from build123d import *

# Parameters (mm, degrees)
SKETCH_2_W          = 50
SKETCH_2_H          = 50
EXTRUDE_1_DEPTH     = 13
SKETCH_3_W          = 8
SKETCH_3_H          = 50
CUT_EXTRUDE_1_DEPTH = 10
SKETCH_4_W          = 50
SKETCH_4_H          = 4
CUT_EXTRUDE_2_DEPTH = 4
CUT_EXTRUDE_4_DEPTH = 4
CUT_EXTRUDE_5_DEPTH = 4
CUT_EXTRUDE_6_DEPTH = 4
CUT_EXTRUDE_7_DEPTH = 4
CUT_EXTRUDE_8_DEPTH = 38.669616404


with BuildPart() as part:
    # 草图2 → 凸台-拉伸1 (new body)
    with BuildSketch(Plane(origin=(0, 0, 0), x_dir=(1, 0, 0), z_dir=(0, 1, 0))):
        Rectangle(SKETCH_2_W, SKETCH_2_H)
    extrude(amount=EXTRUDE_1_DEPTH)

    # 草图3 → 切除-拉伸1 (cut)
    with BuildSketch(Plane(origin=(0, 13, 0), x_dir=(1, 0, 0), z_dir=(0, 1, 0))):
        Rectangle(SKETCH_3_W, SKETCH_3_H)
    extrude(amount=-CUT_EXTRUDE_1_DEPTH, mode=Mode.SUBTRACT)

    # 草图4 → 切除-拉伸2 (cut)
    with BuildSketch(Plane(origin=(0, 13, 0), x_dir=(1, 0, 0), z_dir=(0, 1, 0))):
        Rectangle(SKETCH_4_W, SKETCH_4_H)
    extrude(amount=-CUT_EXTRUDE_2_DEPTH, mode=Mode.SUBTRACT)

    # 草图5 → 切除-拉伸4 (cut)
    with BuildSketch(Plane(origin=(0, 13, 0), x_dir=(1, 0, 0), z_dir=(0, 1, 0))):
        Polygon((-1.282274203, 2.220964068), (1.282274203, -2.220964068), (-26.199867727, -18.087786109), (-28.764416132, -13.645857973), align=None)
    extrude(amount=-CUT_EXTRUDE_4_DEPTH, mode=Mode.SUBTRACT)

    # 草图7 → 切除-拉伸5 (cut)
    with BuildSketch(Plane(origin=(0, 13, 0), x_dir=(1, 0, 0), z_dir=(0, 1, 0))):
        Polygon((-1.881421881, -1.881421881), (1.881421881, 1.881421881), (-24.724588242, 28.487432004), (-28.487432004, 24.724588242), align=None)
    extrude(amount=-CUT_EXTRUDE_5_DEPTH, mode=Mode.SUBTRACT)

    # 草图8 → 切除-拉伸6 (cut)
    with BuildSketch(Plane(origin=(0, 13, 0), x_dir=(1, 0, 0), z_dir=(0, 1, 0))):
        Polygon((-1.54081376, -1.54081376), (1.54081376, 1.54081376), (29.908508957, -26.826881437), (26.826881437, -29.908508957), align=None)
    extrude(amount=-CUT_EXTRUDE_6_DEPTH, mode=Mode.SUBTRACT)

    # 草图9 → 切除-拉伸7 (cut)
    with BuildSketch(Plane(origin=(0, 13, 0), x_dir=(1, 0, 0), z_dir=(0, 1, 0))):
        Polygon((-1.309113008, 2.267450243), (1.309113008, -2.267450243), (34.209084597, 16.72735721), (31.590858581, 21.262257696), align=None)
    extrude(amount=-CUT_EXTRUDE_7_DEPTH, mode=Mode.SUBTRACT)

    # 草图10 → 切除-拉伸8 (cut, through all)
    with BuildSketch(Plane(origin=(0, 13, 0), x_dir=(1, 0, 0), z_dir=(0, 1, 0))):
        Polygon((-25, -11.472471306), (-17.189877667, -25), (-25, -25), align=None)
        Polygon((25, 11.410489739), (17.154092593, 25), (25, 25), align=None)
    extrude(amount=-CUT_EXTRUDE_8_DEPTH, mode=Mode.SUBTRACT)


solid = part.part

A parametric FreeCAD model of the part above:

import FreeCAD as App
import Part
import Sketcher
Q = App.Units.Quantity

doc = App.newDocument("Part")
params = doc.addObject("Spreadsheet::Sheet", "Params")
for row, (alias, value) in enumerate([
    ("sketch1_width", "50 mm"),
    ("pad1_length", "13 mm"),
    ("sketch2_width", "8 mm"),
    ("sketch2_height", "50 mm"),
    ("pocket1_length", "10 mm"),
    ("sketch3_width", "50 mm"),
    ("sketch3_height", "4 mm"),
    ("pocket2_length", "4 mm"),
    ("pocket3_length", "4 mm"),
    ("pocket4_length", "4 mm"),
    ("pocket5_length", "4 mm"),
    ("pocket6_length", "4 mm"),
], start=1):
    params.set(f"A{row}", alias)
    params.set(f"B{row}", "=" + value)
    params.setAlias(f"B{row}", alias)

body = doc.addObject("PartDesign::Body", "Body")

sketch1 = body.newObject("Sketcher::SketchObject", "Sketch")
sketch1.AttachmentSupport = (doc.getObject("XZ_Plane"), [""])
sketch1.MapMode = "FlatFace"
sketch1.addGeometry([
    Part.LineSegment(App.Vector(-25, -25, 0), App.Vector(-25, 25, 0)),
    Part.LineSegment(App.Vector(-25, 25, 0), App.Vector(25, 25, 0)),
    Part.LineSegment(App.Vector(25, 25, 0), App.Vector(25, -25, 0)),
    Part.LineSegment(App.Vector(25, -25, 0), App.Vector(-25, -25, 0)),
], False)
sketch1.addConstraint([
    Sketcher.Constraint("Coincident", 0, 2, 1, 1),
    Sketcher.Constraint("Coincident", 1, 2, 2, 1),
    Sketcher.Constraint("Coincident", 2, 2, 3, 1),
    Sketcher.Constraint("Coincident", 3, 2, 0, 1),
    Sketcher.Constraint("Vertical", 0),
    Sketcher.Constraint("Horizontal", 1),
    Sketcher.Constraint("Vertical", 2),
    Sketcher.Constraint("Horizontal", 3),
    Sketcher.Constraint("Symmetric", 0, 2, 2, 2, -1, 1),
    Sketcher.Constraint("Equal", 3, 0),
    Sketcher.Constraint("DistanceX", 1, 1, 1, 2, Q("50 mm")),
])
sketch1.setExpression("Constraints[10]", "Params.sketch1_width")
pad1 = body.newObject("PartDesign::Pad", "Pad")
pad1.Profile = sketch1
pad1.setExpression("Length", "Params.pad1_length")
pad1.Reversed = True

sketch2 = body.newObject("Sketcher::SketchObject", "Sketch001")
sketch2.AttachmentSupport = (doc.getObject("XZ_Plane"), [""])
sketch2.MapMode = "FlatFace"
sketch2.AttachmentOffset = App.Placement(App.Vector(0, 0, -13), App.Rotation())
sketch2.addGeometry([
    Part.LineSegment(App.Vector(-4, -25, 0), App.Vector(-4, 25, 0)),
    Part.LineSegment(App.Vector(-4, 25, 0), App.Vector(4, 25, 0)),
    Part.LineSegment(App.Vector(4, 25, 0), App.Vector(4, -25, 0)),
    Part.LineSegment(App.Vector(4, -25, 0), App.Vector(-4, -25, 0)),
], False)
sketch2.addConstraint([
    Sketcher.Constraint("Coincident", 0, 2, 1, 1),
    Sketcher.Constraint("Coincident", 1, 2, 2, 1),
    Sketcher.Constraint("Coincident", 2, 2, 3, 1),
    Sketcher.Constraint("Coincident", 3, 2, 0, 1),
    Sketcher.Constraint("Vertical", 0),
    Sketcher.Constraint("Horizontal", 1),
    Sketcher.Constraint("Vertical", 2),
    Sketcher.Constraint("Horizontal", 3),
    Sketcher.Constraint("Symmetric", 0, 2, 2, 2, -1, 1),
    Sketcher.Constraint("DistanceX", 1, 1, 1, 2, Q("8 mm")),
    Sketcher.Constraint("DistanceY", 0, 1, 0, 2, Q("50 mm")),
])
sketch2.setExpression("Constraints[9]", "Params.sketch2_width")
sketch2.setExpression("Constraints[10]", "Params.sketch2_height")
pocket1 = body.newObject("PartDesign::Pocket", "Pocket")
pocket1.Profile = sketch2
pocket1.setExpression("Length", "Params.pocket1_length")
pocket1.Reversed = True

sketch3 = body.newObject("Sketcher::SketchObject", "Sketch002")
sketch3.AttachmentSupport = (doc.getObject("XZ_Plane"), [""])
sketch3.MapMode = "FlatFace"
sketch3.AttachmentOffset = App.Placement(App.Vector(0, 0, -13), App.Rotation())
sketch3.addGeometry([
    Part.LineSegment(App.Vector(-25, -2, 0), App.Vector(-25, 2, 0)),
    Part.LineSegment(App.Vector(-25, 2, 0), App.Vector(25, 2, 0)),
    Part.LineSegment(App.Vector(25, 2, 0), App.Vector(25, -2, 0)),
    Part.LineSegment(App.Vector(25, -2, 0), App.Vector(-25, -2, 0)),
], False)
sketch3.addConstraint([
    Sketcher.Constraint("Coincident", 0, 2, 1, 1),
    Sketcher.Constraint("Coincident", 1, 2, 2, 1),
    Sketcher.Constraint("Coincident", 2, 2, 3, 1),
    Sketcher.Constraint("Coincident", 3, 2, 0, 1),
    Sketcher.Constraint("Vertical", 0),
    Sketcher.Constraint("Horizontal", 1),
    Sketcher.Constraint("Vertical", 2),
    Sketcher.Constraint("Horizontal", 3),
    Sketcher.Constraint("Symmetric", 0, 2, 2, 2, -1, 1),
    Sketcher.Constraint("DistanceX", 1, 1, 1, 2, Q("50 mm")),
    Sketcher.Constraint("DistanceY", 0, 1, 0, 2, Q("4 mm")),
])
sketch3.setExpression("Constraints[9]", "Params.sketch3_width")
sketch3.setExpression("Constraints[10]", "Params.sketch3_height")
pocket2 = body.newObject("PartDesign::Pocket", "Pocket001")
pocket2.Profile = sketch3
pocket2.setExpression("Length", "Params.pocket2_length")
pocket2.Reversed = True

sketch4 = body.newObject("Sketcher::SketchObject", "Sketch003")
sketch4.AttachmentSupport = (doc.getObject("XZ_Plane"), [""])
sketch4.MapMode = "FlatFace"
sketch4.AttachmentOffset = App.Placement(App.Vector(0, 0, -13), App.Rotation())
sketch4.addGeometry([
    Part.LineSegment(App.Vector(1, 2, 0), App.Vector(-1, -2, 0)),
    Part.LineSegment(App.Vector(-1, -2, 0), App.Vector(-29, 14, 0)),
    Part.LineSegment(App.Vector(-29, 14, 0), App.Vector(-26, 18, 0)),
    Part.LineSegment(App.Vector(-26, 18, 0), App.Vector(1, 2, 0)),
], False)
sketch4.addConstraint([
    Sketcher.Constraint("Coincident", 0, 2, 1, 1),
    Sketcher.Constraint("Coincident", 1, 2, 2, 1),
    Sketcher.Constraint("Coincident", 2, 2, 3, 1),
    Sketcher.Constraint("Coincident", 3, 2, 0, 1),
    Sketcher.Constraint("Symmetric", 0, 2, 3, 2, -1, 1),
    Sketcher.Constraint("Perpendicular", 0, 1),
    Sketcher.Constraint("Perpendicular", 1, 2),
    Sketcher.Constraint("Perpendicular", 2, 3),
    Sketcher.Constraint("Angle", 0, Q("-120 deg")),
    Sketcher.Constraint("DistanceX", 1, 2, 0, 2, Q("27.482142 mm")),
    Sketcher.Constraint("DistanceX", 1, 2, 2, 2, Q("2.564548 mm")),
])
pocket3 = body.newObject("PartDesign::Pocket", "Pocket002")
pocket3.Profile = sketch4
pocket3.setExpression("Length", "Params.pocket3_length")
pocket3.Reversed = True

sketch5 = body.newObject("Sketcher::SketchObject", "Sketch004")
sketch5.AttachmentSupport = (doc.getObject("XZ_Plane"), [""])
sketch5.MapMode = "FlatFace"
sketch5.AttachmentOffset = App.Placement(App.Vector(0, 0, -13), App.Rotation())
sketch5.addGeometry([
    Part.LineSegment(App.Vector(-2, 2, 0), App.Vector(2, -2, 0)),
    Part.LineSegment(App.Vector(2, -2, 0), App.Vector(-25, -28, 0)),
    Part.LineSegment(App.Vector(-25, -28, 0), App.Vector(-28, -25, 0)),
    Part.LineSegment(App.Vector(-28, -25, 0), App.Vector(-2, 2, 0)),
], False)
sketch5.addConstraint([
    Sketcher.Constraint("Coincident", 0, 2, 1, 1),
    Sketcher.Constraint("Coincident", 1, 2, 2, 1),
    Sketcher.Constraint("Coincident", 2, 2, 3, 1),
    Sketcher.Constraint("Coincident", 3, 2, 0, 1),
    Sketcher.Constraint("Symmetric", 0, 2, 3, 2, -1, 1),
    Sketcher.Constraint("Perpendicular", 0, 1),
    Sketcher.Constraint("Perpendicular", 1, 2),
    Sketcher.Constraint("Perpendicular", 2, 3),
    Sketcher.Constraint("Angle", 0, Q("-45 deg")),
    Sketcher.Constraint("Distance", 1, Q("37.62658 mm")),
    Sketcher.Constraint("DistanceX", -1, 1, 0, 2, Q("1.881422 mm")),
])
pocket4 = body.newObject("PartDesign::Pocket", "Pocket003")
pocket4.Profile = sketch5
pocket4.setExpression("Length", "Params.pocket4_length")
pocket4.Reversed = True

sketch6 = body.newObject("Sketcher::SketchObject", "Sketch005")
sketch6.AttachmentSupport = (doc.getObject("XZ_Plane"), [""])
sketch6.MapMode = "FlatFace"
sketch6.AttachmentOffset = App.Placement(App.Vector(0, 0, -13), App.Rotation())
sketch6.addGeometry([
    Part.LineSegment(App.Vector(1.5, -1.5, 0), App.Vector(-1.5, 1.5, 0)),
    Part.LineSegment(App.Vector(-1.5, 1.5, 0), App.Vector(26.8, 29.9, 0)),
    Part.LineSegment(App.Vector(26.8, 29.9, 0), App.Vector(29.9, 26.8, 0)),
    Part.LineSegment(App.Vector(29.9, 26.8, 0), App.Vector(1.5, -1.5, 0)),
], False)
sketch6.addConstraint([
    Sketcher.Constraint("Coincident", 0, 2, 1, 1),
    Sketcher.Constraint("Coincident", 1, 2, 2, 1),
    Sketcher.Constraint("Coincident", 2, 2, 3, 1),
    Sketcher.Constraint("Coincident", 3, 2, 0, 1),
    Sketcher.Constraint("Symmetric", 0, 2, 3, 2, -1, 1),
    Sketcher.Constraint("Perpendicular", 0, 1),
    Sketcher.Constraint("Perpendicular", 1, 2),
    Sketcher.Constraint("Perpendicular", 2, 3),
    Sketcher.Constraint("Angle", 0, Q("135 deg")),
    Sketcher.Constraint("Distance", 0, Q("4.358079 mm")),
    Sketcher.Constraint("Distance", 1, Q("40.117979 mm")),
])
pocket5 = body.newObject("PartDesign::Pocket", "Pocket004")
pocket5.Profile = sketch6
pocket5.setExpression("Length", "Params.pocket5_length")
pocket5.Reversed = True

sketch7 = body.newObject("Sketcher::SketchObject", "Sketch006")
sketch7.AttachmentSupport = (doc.getObject("XZ_Plane"), [""])
sketch7.MapMode = "FlatFace"
sketch7.AttachmentOffset = App.Placement(App.Vector(0, 0, -13), App.Rotation())
sketch7.addGeometry([
    Part.LineSegment(App.Vector(-1, -2, 0), App.Vector(1, 2, 0)),
    Part.LineSegment(App.Vector(1, 2, 0), App.Vector(34, -17, 0)),
    Part.LineSegment(App.Vector(34, -17, 0), App.Vector(32, -21, 0)),
    Part.LineSegment(App.Vector(32, -21, 0), App.Vector(-1, -2, 0)),
], False)
sketch7.addConstraint([
    Sketcher.Constraint("Coincident", 0, 2, 1, 1),
    Sketcher.Constraint("Coincident", 1, 2, 2, 1),
    Sketcher.Constraint("Coincident", 2, 2, 3, 1),
    Sketcher.Constraint("Coincident", 3, 2, 0, 1),
    Sketcher.Constraint("Symmetric", 0, 2, 3, 2, -1, 1),
    Sketcher.Constraint("Perpendicular", 0, 1),
    Sketcher.Constraint("Perpendicular", 1, 2),
    Sketcher.Constraint("Perpendicular", 2, 3),
    Sketcher.Constraint("Angle", 0, Q("60 deg")),
    Sketcher.Constraint("DistanceY", 2, 2, 1, 2, Q("4.5349 mm")),
    Sketcher.Constraint("DistanceX", -1, 1, 2, 2, Q("31.590859 mm")),
])
pocket6 = body.newObject("PartDesign::Pocket", "Pocket005")
pocket6.Profile = sketch7
pocket6.setExpression("Length", "Params.pocket6_length")
pocket6.Reversed = True

sketch8 = body.newObject("Sketcher::SketchObject", "Sketch007")
sketch8.AttachmentSupport = (doc.getObject("XZ_Plane"), [""])
sketch8.MapMode = "FlatFace"
sketch8.AttachmentOffset = App.Placement(App.Vector(0, 0, -13), App.Rotation())
sketch8.addGeometry([
    Part.LineSegment(App.Vector(-17, 25, 0), App.Vector(-25, 11, 0)),
    Part.LineSegment(App.Vector(-25, 11, 0), App.Vector(-25, 25, 0)),
    Part.LineSegment(App.Vector(-25, 25, 0), App.Vector(-17, 25, 0)),
    Part.LineSegment(App.Vector(17, -25, 0), App.Vector(25, -11, 0)),
    Part.LineSegment(App.Vector(25, -11, 0), App.Vector(25, -25, 0)),
    Part.LineSegment(App.Vector(25, -25, 0), App.Vector(17, -25, 0)),
], False)
sketch8.addConstraint([
    Sketcher.Constraint("Coincident", 0, 2, 1, 1),
    Sketcher.Constraint("Coincident", 1, 2, 2, 1),
    Sketcher.Constraint("Coincident", 2, 2, 0, 1),
    Sketcher.Constraint("Coincident", 3, 2, 4, 1),
    Sketcher.Constraint("Coincident", 4, 2, 5, 1),
    Sketcher.Constraint("Coincident", 5, 2, 3, 1),
    Sketcher.Constraint("Vertical", 1),
    Sketcher.Constraint("Horizontal", 2),
    Sketcher.Constraint("Vertical", 4),
    Sketcher.Constraint("Horizontal", 5),
    Sketcher.Constraint("Symmetric", 1, 2, 4, 2, -1, 1),
    Sketcher.Constraint("Parallel", 0, 3),
    Sketcher.Constraint("Angle", 0, Q("-120 deg")),
    Sketcher.Constraint("DistanceX", 0, 2, -1, 1, Q("25 mm")),
    Sketcher.Constraint("DistanceY", -1, 1, 1, 2, Q("25 mm")),
    Sketcher.Constraint("DistanceY", 1, 1, 1, 2, Q("13.527529 mm")),
    Sketcher.Constraint("DistanceY", 4, 2, 4, 1, Q("13.58951 mm")),
])
pocket7 = body.newObject("PartDesign::Pocket", "Pocket006")
pocket7.Profile = sketch8
pocket7.Type = "ThroughAll"
pocket7.Reversed = True

doc.recompute()
